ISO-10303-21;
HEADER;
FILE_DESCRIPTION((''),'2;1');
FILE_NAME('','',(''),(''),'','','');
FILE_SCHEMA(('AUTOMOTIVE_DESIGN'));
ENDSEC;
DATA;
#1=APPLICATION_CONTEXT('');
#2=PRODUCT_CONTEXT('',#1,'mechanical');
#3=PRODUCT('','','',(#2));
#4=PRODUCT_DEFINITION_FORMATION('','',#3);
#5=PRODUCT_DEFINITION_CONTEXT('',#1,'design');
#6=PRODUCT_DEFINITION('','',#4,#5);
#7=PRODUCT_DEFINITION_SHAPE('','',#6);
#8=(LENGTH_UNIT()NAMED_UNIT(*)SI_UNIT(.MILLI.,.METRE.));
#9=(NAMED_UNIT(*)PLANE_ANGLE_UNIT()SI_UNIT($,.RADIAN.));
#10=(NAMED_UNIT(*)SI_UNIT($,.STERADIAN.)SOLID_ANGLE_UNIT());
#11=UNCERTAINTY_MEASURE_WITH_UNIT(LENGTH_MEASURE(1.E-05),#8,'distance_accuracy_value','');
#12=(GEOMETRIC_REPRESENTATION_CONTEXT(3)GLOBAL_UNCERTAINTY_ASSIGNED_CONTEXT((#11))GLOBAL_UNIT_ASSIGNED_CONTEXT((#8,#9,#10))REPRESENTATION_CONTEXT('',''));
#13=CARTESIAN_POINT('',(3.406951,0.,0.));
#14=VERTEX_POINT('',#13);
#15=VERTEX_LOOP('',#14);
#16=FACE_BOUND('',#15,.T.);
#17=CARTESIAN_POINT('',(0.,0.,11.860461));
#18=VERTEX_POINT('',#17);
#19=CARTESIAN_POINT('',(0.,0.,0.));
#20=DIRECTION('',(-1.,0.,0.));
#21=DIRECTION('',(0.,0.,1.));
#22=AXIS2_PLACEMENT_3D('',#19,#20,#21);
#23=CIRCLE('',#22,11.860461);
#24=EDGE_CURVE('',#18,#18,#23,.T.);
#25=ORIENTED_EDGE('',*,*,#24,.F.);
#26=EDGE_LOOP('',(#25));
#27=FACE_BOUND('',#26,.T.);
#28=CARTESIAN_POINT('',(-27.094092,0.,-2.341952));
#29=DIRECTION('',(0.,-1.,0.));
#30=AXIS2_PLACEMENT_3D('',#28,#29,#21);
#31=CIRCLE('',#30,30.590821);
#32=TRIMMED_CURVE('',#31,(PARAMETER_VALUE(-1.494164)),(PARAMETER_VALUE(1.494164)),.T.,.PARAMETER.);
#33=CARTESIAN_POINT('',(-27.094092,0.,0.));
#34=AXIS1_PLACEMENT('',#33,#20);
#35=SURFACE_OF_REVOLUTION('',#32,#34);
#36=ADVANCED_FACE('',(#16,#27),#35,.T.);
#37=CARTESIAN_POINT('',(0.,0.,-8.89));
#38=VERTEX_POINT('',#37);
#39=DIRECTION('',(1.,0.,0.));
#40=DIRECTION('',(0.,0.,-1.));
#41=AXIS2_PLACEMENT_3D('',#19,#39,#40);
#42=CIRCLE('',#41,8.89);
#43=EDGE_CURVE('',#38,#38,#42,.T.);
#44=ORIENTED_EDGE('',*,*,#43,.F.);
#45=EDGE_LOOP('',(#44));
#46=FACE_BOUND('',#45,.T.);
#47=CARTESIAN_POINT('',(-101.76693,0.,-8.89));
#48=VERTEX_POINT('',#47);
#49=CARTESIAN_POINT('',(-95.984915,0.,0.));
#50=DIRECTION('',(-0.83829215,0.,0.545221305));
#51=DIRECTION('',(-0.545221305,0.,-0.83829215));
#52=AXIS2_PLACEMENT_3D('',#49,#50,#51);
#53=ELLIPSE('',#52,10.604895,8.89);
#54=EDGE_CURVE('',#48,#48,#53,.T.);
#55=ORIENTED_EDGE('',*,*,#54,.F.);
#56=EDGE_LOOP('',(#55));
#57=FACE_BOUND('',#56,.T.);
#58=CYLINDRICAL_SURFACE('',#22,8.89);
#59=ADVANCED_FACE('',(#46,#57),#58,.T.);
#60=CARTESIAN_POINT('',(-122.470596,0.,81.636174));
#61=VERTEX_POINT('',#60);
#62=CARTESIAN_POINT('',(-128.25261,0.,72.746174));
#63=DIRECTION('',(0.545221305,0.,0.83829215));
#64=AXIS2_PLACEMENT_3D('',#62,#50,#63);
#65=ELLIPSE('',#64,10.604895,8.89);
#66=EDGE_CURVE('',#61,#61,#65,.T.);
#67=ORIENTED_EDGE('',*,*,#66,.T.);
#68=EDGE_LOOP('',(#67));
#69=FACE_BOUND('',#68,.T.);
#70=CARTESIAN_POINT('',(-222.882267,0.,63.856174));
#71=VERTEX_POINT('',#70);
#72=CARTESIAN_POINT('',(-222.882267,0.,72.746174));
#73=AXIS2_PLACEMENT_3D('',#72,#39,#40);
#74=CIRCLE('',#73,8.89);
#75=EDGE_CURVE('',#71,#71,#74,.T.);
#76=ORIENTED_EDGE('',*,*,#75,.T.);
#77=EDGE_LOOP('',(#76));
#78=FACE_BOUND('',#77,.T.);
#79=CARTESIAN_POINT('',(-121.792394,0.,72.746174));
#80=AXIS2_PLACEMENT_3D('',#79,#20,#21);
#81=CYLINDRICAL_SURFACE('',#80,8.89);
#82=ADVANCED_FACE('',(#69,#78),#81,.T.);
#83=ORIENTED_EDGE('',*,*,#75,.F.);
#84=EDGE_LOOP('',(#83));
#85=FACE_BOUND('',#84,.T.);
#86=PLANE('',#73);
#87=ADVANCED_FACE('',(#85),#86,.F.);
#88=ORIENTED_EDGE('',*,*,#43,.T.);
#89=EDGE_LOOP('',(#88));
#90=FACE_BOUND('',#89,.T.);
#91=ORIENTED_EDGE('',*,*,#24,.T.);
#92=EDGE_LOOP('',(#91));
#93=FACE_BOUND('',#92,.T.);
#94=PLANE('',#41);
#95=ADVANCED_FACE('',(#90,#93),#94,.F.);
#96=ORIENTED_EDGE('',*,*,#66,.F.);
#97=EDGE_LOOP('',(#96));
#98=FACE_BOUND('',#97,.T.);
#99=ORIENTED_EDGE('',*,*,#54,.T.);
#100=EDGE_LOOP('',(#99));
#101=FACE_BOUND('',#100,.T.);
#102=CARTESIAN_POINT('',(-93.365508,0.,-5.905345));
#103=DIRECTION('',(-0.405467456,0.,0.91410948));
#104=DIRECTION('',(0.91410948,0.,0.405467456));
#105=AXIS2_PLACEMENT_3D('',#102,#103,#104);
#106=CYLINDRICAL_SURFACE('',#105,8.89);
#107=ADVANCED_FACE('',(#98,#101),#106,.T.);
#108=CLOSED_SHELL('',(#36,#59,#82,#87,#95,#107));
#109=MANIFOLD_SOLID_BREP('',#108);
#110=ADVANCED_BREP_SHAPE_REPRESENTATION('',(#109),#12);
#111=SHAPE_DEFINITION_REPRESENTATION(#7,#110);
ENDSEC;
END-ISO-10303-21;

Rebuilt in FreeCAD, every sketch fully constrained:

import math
import FreeCAD as App
import Part
import Sketcher
Q = App.Units.Quantity

doc = App.newDocument("Part")
body = doc.addObject("PartDesign::Body", "Body")

# Sketch on YZ plane
sketch1 = doc.addObject("Sketcher::SketchObject", "Sketch")
body.addObject(sketch1)
sketch1.AttachmentSupport = (doc.YZ_Plane, [""])
sketch1.MapMode = "FlatFace"
sketch1.addGeometry(Part.Circle(App.Vector(0, 0, 0), App.Vector(0, 0, 1), 9), False)
sketch1.addConstraint([
    Sketcher.Constraint("Coincident", 0, 3, -1, 1),
    Sketcher.Constraint("Diameter", 0, Q("0.7 in")),
])

# Sketch on XZ plane
sketch2 = doc.addObject("Sketcher::SketchObject", "Sketch001")
body.addObject(sketch2)
sketch2.AttachmentSupport = (doc.XZ_Plane, [""])
sketch2.MapMode = "FlatFace"
sketch2.addGeometry([
    Part.LineSegment(App.Vector(0, 0, 0), App.Vector(-96, 0, 0)),
    Part.LineSegment(App.Vector(-96, 0, 0), App.Vector(-128, 73, 0)),
    Part.LineSegment(App.Vector(-128, 73, 0), App.Vector(-223, 73, 0)),
], False)
sketch2.addConstraint([
    Sketcher.Constraint("Coincident", 0, 2, 1, 1),
    Sketcher.Constraint("Coincident", 1, 2, 2, 1),
    Sketcher.Constraint("Horizontal", 0),
    Sketcher.Constraint("Horizontal", 2),
    Sketcher.Constraint("Coincident", 0, 1, -1, 1),
    Sketcher.Constraint("DistanceX", 0, 2, 0, 1, Q("95.984915 mm")),
    Sketcher.Constraint("DistanceX", 2, 2, 2, 1, Q("94.629657 mm")),
    Sketcher.Constraint("DistanceX", 1, 2, -1, 1, Q("128.25261 mm")),
    Sketcher.Constraint("Distance", 1, Q("79.581467 mm")),
])
doc.recompute()

additivepipe = doc.addObject("PartDesign::AdditivePipe", "AdditivePipe")
body.addObject(additivepipe)
additivepipe.Profile = sketch1
additivepipe.Spine = (sketch2, ["Edge1", "Edge2", "Edge3"])
additivepipe.Transition = "Right corner"

# Sketch on XZ plane
sketch3 = doc.addObject("Sketcher::SketchObject", "Sketch002")
body.addObject(sketch3)
sketch3.AttachmentSupport = (doc.XZ_Plane, [""])
sketch3.MapMode = "FlatFace"
sketch3.addGeometry([
    Part.LineSegment(App.Vector(0, -11.9, 0), App.Vector(0, 0, 0)),
    Part.LineSegment(App.Vector(0, 0, 0), App.Vector(3.4, 0, 0)),
    Part.ArcOfCircle(Part.Circle(App.Vector(-27.1, 2.3, 0), App.Vector(0, 0, 1), 30.6), math.radians(-28), math.radians(-4)),
], False)
sketch3.addConstraint([
    Sketcher.Constraint("Coincident", 0, 2, 1, 1),
    Sketcher.Constraint("Coincident", 1, 2, 2, 2),
    Sketcher.Constraint("Coincident", 2, 1, 0, 1),
    Sketcher.Constraint("Vertical", 0),
    Sketcher.Constraint("Horizontal", 1),
    Sketcher.Constraint("Coincident", 0, 2, -1, 1),
    Sketcher.Constraint("Radius", 2, Q("30.590821 mm")),
    Sketcher.Constraint("DistanceX", 1, 1, 1, 2, Q("3.406951 mm")),
    Sketcher.Constraint("DistanceY", 0, 1, 0, 2, Q("11.860461 mm")),
])
revolution = doc.addObject("PartDesign::Revolution", "Revolution")
body.addObject(revolution)
revolution.Profile = sketch3
revolution.ReferenceAxis = (sketch3, ["H_Axis"])
revolution.Angle = 360

doc.recompute()
